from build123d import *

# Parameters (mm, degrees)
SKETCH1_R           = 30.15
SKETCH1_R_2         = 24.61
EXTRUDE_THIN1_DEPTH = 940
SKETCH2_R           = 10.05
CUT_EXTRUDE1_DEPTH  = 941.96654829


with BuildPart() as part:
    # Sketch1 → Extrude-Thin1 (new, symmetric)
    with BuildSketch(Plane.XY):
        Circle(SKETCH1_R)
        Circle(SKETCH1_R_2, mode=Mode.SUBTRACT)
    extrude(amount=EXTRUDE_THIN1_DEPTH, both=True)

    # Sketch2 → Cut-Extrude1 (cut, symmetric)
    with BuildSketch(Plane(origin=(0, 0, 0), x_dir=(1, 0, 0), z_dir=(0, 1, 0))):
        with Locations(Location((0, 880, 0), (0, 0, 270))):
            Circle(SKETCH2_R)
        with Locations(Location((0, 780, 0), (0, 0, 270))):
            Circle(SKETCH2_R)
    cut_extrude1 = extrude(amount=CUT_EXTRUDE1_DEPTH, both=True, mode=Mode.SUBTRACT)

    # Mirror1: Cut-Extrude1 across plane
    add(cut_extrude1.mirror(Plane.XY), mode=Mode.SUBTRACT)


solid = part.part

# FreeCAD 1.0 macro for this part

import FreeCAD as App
import Part
import Sketcher

doc = App.newDocument("Part")
body = doc.addObject("PartDesign::Body", "Body")

sketch1 = body.newObject("Sketcher::SketchObject", "Sketch")
sketch1.AttachmentSupport = (doc.getObject("XY_Plane"), [""])
sketch1.MapMode = "FlatFace"
sketch1.addGeometry([
    Part.Circle(App.Vector(0, 0, 0), App.Vector(0, 0, 1), 30),
    Part.Circle(App.Vector(0, 0, 0), App.Vector(0, 0, 1), 25),
], False)
sketch1.addConstraint([
    Sketcher.Constraint("Coincident", 0, 3, -1, 1),
    Sketcher.Constraint("Coincident", 1, 3, -1, 1),
    Sketcher.Constraint("Diameter", 0, 60.3),
    Sketcher.Constraint("Diameter", 1, 49.22),
])
pad1 = body.newObject("PartDesign::Pad", "Pad")
pad1.Profile = sketch1
pad1.Length = 1880
pad1.Midplane = True

sketch2 = body.newObject("Sketcher::SketchObject", "Sketch001")
sketch2.AttachmentSupport = (doc.getObject("XZ_Plane"), [""])
sketch2.MapMode = "FlatFace"
sketch2.addGeometry([
    Part.Circle(App.Vector(0, -880, 0), App.Vector(0, 0, 1), 10),
    Part.Circle(App.Vector(0, -780, 0), App.Vector(0, 0, 1), 10),
], False)
sketch2.addConstraint([
    Sketcher.Constraint("Equal", 0, 1),
    Sketcher.Constraint("PointOnObject", 0, 3, -2),
    Sketcher.Constraint("PointOnObject", 1, 3, -2),
    Sketcher.Constraint("Diameter", 0, 20.1),
    Sketcher.Constraint("DistanceY", 0, 3, -1, 1, 880.0),
    Sketcher.Constraint("DistanceY", 1, 3, -1, 1, 780.0),
])
pocket1 = body.newObject("PartDesign::Pocket", "Pocket")
pocket1.Profile = sketch2
pocket1.Length = 1883.933097
pocket1.Midplane = True
doc.recompute()

mirrored = body.newObject("PartDesign::Mirrored", "Mirrored")
mirrored.Originals = [pocket1]
mirrored.MirrorPlane = (doc.getObject("XY_Plane"), [""])
body.Tip = mirrored

doc.recompute()
